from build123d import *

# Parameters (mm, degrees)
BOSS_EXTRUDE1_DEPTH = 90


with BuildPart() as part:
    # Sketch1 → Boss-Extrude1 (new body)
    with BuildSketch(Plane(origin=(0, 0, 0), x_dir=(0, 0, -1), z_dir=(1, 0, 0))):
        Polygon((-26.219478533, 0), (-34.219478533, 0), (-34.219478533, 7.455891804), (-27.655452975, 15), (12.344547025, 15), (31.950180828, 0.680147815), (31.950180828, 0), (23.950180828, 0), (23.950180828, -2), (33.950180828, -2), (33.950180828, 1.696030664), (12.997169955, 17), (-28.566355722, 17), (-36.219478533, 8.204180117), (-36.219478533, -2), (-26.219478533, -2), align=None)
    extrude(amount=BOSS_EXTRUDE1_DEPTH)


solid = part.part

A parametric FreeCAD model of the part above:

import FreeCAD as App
import Part
import Sketcher
from FreeCAD import Vector
Q = App.Units.Quantity

doc = App.newDocument("Part")
body = doc.addObject("PartDesign::Body", "Body")

# Sketch on YZ plane
sketch1 = body.newObject("Sketcher::SketchObject", "Sketch")
sketch1.AttachmentSupport = (doc.getObject("YZ_Plane"), [""])
sketch1.MapMode = "FlatFace"
sketch1.addGeometry([
    Part.LineSegment(Vector(0, 26.2, 0), Vector(0, 34.2, 0)),  # 0
    Part.LineSegment(Vector(0, 34.2, 0), Vector(7.5, 34.2, 0)),  # 1
    Part.LineSegment(Vector(7.5, 34.2, 0), Vector(15, 27.7, 0)),  # 2
    Part.LineSegment(Vector(15, 27.7, 0), Vector(15, -12.3, 0)),  # 3
    Part.LineSegment(Vector(15, -12.3, 0), Vector(0.7, -32, 0)),  # 4
    Part.LineSegment(Vector(0.7, -32, 0), Vector(0, -32, 0)),  # 5
    Part.LineSegment(Vector(0, -32, 0), Vector(0, -24, 0)),  # 6
    Part.LineSegment(Vector(0, -24, 0), Vector(-2, -24, 0)),  # 7
    Part.LineSegment(Vector(-2, -24, 0), Vector(-2, -34, 0)),  # 8
    Part.LineSegment(Vector(-2, -34, 0), Vector(1.7, -34, 0)),  # 9
    Part.LineSegment(Vector(1.7, -34, 0), Vector(17, -13, 0)),  # 10
    Part.LineSegment(Vector(17, -13, 0), Vector(17, 28.6, 0)),  # 11
    Part.LineSegment(Vector(17, 28.6, 0), Vector(8.2, 36.2, 0)),  # 12
    Part.LineSegment(Vector(8.2, 36.2, 0), Vector(-2, 36.2, 0)),  # 13
    Part.LineSegment(Vector(-2, 36.2, 0), Vector(-2, 26.2, 0)),  # 14
    Part.LineSegment(Vector(-2, 26.2, 0), Vector(0, 26.2, 0)),  # 15
], False)
sketch1.addConstraint([
    Sketcher.Constraint("Coincident", 0, 2, 1, 1),
    Sketcher.Constraint("Coincident", 1, 2, 2, 1),
    Sketcher.Constraint("Coincident", 2, 2, 3, 1),
    Sketcher.Constraint("Coincident", 3, 2, 4, 1),
    Sketcher.Constraint("Coincident", 4, 2, 5, 1),
    Sketcher.Constraint("Coincident", 5, 2, 6, 1),
    Sketcher.Constraint("Coincident", 6, 2, 7, 1),
    Sketcher.Constraint("Coincident", 7, 2, 8, 1),
    Sketcher.Constraint("Coincident", 8, 2, 9, 1),
    Sketcher.Constraint("Coincident", 9, 2, 10, 1),
    Sketcher.Constraint("Coincident", 10, 2, 11, 1),
    Sketcher.Constraint("Coincident", 11, 2, 12, 1),
    Sketcher.Constraint("Coincident", 12, 2, 13, 1),
    Sketcher.Constraint("Coincident", 13, 2, 14, 1),
    Sketcher.Constraint("Coincident", 14, 2, 15, 1),
    Sketcher.Constraint("Coincident", 15, 2, 0, 1),
    Sketcher.Constraint("Vertical", 0),
    Sketcher.Constraint("Horizontal", 1),
    Sketcher.Constraint("Vertical", 3),
    Sketcher.Constraint("Horizontal", 5),
    Sketcher.Constraint("Vertical", 6),
    Sketcher.Constraint("Horizontal", 7),
    Sketcher.Constraint("Vertical", 8),
    Sketcher.Constraint("Horizontal", 9),
    Sketcher.Constraint("Vertical", 11),
    Sketcher.Constraint("Horizontal", 13),
    Sketcher.Constraint("Vertical", 14),
    Sketcher.Constraint("Horizontal", 15),
    Sketcher.Constraint("PointOnObject", 0, 2, -2),
    Sketcher.Constraint("PointOnObject", 5, 2, -2),
    Sketcher.Constraint("Parallel", 4, 10),
    Sketcher.Constraint("Parallel", 2, 12),
    Sketcher.Constraint("Vertical", 8, 2, 13, 2),
    Sketcher.Constraint("Equal", 0, 6),
    Sketcher.Constraint("Equal", 8, 14),
    Sketcher.Constraint("DistanceX", 7, 2, 7, 1, Q("2 mm")),
    Sketcher.Constraint("DistanceY", 0, 1, 0, 2, Q("8 mm")),
    Sketcher.Constraint("DistanceY", 3, 2, 3, 1, Q("40 mm")),
    Sketcher.Constraint("DistanceY", 8, 2, 8, 1, Q("10 mm")),
    Sketcher.Constraint("Distance", 2, Q("10 mm")),
    Sketcher.Constraint("DistanceX", -1, 1, 2, 2, Q("15 mm")),
    Sketcher.Constraint("DistanceX", -1, 1, 10, 2, Q("17 mm")),
    Sketcher.Constraint("DistanceX", 1, 1, 1, 2, Q("7.455892 mm")),
    Sketcher.Constraint("DistanceX", 9, 1, 9, 2, Q("3.696031 mm")),
    Sketcher.Constraint("DistanceX", 13, 2, 13, 1, Q("10.20418 mm")),
    Sketcher.Constraint("Distance", 10, Q("25.946872 mm")),
    Sketcher.Constraint("DistanceX", 5, 2, 5, 1, Q("0.680148 mm")),
    Sketcher.Constraint("DistanceY", -1, 1, 0, 2, Q("34.219479 mm")),
])
pad1 = body.newObject("PartDesign::Pad", "Pad")
pad1.Profile = sketch1
pad1.Length = 90

doc.recompute()
